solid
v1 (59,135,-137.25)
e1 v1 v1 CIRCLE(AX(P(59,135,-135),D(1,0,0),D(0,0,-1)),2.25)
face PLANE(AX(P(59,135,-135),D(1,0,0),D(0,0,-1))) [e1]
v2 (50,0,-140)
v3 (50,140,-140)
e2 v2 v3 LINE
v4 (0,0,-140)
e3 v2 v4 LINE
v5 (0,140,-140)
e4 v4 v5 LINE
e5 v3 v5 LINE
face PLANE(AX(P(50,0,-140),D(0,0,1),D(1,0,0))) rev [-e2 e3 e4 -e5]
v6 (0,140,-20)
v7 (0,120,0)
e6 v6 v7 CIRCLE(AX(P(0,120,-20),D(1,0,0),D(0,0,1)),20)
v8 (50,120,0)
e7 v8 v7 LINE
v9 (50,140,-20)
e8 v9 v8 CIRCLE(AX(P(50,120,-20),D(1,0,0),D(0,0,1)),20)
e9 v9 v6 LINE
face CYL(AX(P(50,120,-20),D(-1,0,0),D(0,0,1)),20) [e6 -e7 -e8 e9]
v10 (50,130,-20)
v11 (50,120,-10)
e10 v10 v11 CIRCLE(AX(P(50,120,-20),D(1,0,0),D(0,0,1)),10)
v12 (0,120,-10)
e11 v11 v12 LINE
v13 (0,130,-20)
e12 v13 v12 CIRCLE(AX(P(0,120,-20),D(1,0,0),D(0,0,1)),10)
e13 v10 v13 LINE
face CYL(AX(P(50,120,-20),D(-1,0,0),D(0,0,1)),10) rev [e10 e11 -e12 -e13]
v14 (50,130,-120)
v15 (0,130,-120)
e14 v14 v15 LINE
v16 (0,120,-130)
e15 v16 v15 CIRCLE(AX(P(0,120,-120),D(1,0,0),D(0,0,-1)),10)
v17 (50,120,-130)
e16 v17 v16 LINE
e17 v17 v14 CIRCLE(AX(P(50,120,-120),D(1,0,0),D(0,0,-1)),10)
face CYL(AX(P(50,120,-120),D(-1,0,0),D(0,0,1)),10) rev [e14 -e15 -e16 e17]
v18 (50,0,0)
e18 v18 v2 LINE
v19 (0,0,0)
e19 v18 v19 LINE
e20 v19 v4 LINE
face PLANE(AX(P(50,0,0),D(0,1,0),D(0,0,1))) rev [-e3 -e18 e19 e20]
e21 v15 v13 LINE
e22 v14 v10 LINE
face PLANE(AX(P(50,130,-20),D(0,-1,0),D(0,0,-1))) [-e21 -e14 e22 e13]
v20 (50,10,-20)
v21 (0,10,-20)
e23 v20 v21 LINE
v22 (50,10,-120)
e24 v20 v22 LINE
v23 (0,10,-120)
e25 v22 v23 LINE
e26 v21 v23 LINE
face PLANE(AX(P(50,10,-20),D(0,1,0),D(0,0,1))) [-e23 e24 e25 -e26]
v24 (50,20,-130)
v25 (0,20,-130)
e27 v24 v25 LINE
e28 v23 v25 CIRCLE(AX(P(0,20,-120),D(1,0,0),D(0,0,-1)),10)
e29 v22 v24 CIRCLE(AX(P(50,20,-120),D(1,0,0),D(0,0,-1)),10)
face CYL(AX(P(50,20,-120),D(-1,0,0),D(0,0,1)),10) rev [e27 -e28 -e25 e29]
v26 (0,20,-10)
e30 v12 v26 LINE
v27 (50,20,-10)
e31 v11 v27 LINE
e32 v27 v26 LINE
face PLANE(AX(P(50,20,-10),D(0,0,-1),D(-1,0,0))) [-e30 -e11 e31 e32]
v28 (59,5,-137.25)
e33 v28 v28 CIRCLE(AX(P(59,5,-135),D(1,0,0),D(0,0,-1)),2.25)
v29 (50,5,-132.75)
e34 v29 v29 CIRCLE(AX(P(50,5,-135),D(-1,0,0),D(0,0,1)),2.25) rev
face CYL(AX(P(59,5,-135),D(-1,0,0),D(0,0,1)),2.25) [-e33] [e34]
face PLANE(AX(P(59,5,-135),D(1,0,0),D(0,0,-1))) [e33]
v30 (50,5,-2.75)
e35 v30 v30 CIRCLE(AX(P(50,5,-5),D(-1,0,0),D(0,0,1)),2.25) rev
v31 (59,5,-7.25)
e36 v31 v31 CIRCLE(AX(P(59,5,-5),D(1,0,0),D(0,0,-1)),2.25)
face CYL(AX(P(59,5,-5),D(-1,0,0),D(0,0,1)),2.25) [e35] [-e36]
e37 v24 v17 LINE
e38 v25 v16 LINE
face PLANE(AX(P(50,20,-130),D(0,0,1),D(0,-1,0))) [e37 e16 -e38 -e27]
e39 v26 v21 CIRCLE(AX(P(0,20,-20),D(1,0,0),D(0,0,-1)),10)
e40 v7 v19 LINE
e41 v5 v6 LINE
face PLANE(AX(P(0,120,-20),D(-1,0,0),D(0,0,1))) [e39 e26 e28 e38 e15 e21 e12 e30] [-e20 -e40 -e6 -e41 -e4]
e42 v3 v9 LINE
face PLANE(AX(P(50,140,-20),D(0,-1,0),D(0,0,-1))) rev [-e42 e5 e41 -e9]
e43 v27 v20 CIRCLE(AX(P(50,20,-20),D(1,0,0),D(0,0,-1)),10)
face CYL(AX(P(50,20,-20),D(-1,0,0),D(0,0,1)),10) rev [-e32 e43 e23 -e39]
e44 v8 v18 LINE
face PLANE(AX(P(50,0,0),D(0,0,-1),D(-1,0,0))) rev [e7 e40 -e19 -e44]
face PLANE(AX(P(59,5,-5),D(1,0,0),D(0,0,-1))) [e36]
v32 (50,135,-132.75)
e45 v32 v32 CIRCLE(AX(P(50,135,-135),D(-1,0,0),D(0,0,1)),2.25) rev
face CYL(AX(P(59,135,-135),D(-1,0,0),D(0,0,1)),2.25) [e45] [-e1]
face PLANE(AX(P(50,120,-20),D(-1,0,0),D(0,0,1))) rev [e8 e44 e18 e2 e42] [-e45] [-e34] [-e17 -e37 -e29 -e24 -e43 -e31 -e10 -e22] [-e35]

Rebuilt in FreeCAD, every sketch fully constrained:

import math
import FreeCAD as App
import Part
import Sketcher

doc = App.newDocument("Part")
body = doc.addObject("PartDesign::Body", "Body")

sketch1 = body.newObject("Sketcher::SketchObject", "Sketch")
sketch1.AttachmentSupport = (doc.getObject("YZ_Plane"), [""])
sketch1.MapMode = "FlatFace"
sketch1.addGeometry([
    Part.LineSegment(App.Vector(0, 0, 0), App.Vector(0, -140, 0)),
    Part.LineSegment(App.Vector(0, -140, 0), App.Vector(140, -140, 0)),
    Part.LineSegment(App.Vector(140, -140, 0), App.Vector(140, -20, 0)),
    Part.ArcOfCircle(Part.Circle(App.Vector(120, -20, 0), App.Vector(0, 0, 1), 20), math.radians(0), math.radians(90)),
    Part.LineSegment(App.Vector(120, 0, 0), App.Vector(0, 0, 0)),
    Part.LineSegment(App.Vector(10, -120, 0), App.Vector(10, -20, 0)),
    Part.ArcOfCircle(Part.Circle(App.Vector(20, -20, 0), App.Vector(0, 0, 1), 10), math.radians(90), math.radians(180)),
    Part.LineSegment(App.Vector(20, -10, 0), App.Vector(120, -10, 0)),
    Part.ArcOfCircle(Part.Circle(App.Vector(120, -20, 0), App.Vector(0, 0, 1), 10), math.radians(0), math.radians(90)),
    Part.LineSegment(App.Vector(130, -20, 0), App.Vector(130, -120, 0)),
    Part.ArcOfCircle(Part.Circle(App.Vector(120, -120, 0), App.Vector(0, 0, 1), 10), math.radians(-90), math.radians(0)),
    Part.LineSegment(App.Vector(120, -130, 0), App.Vector(20, -130, 0)),
    Part.ArcOfCircle(Part.Circle(App.Vector(20, -120, 0), App.Vector(0, 0, 1), 10), math.radians(180), math.radians(270)),
], False)
sketch1.addConstraint([
    Sketcher.Constraint("Coincident", 0, 2, 1, 1),
    Sketcher.Constraint("Coincident", 1, 2, 2, 1),
    Sketcher.Constraint("Tangent", 2, 2, 3, 1),
    Sketcher.Constraint("Tangent", 3, 2, 4, 1),
    Sketcher.Constraint("Coincident", 4, 2, 0, 1),
    Sketcher.Constraint("Tangent", 5, 2, 6, 2),
    Sketcher.Constraint("Tangent", 6, 1, 7, 1),
    Sketcher.Constraint("Tangent", 7, 2, 8, 2),
    Sketcher.Constraint("Tangent", 8, 1, 9, 1),
    Sketcher.Constraint("Tangent", 9, 2, 10, 2),
    Sketcher.Constraint("Tangent", 10, 1, 11, 1),
    Sketcher.Constraint("Tangent", 11, 2, 12, 2),
    Sketcher.Constraint("Tangent", 12, 1, 5, 1),
    Sketcher.Constraint("Vertical", 0),
    Sketcher.Constraint("Horizontal", 1),
    Sketcher.Constraint("Vertical", 2),
    Sketcher.Constraint("Horizontal", 4),
    Sketcher.Constraint("Vertical", 5),
    Sketcher.Constraint("Horizontal", 7),
    Sketcher.Constraint("Vertical", 9),
    Sketcher.Constraint("Horizontal", 11),
    Sketcher.Constraint("Coincident", 4, 2, -1, 1),
    Sketcher.Constraint("Coincident", 8, 3, 3, 3),
    Sketcher.Constraint("Equal", 6, 8),
    Sketcher.Constraint("Equal", 8, 10),
    Sketcher.Constraint("Equal", 10, 12),
    Sketcher.Constraint("Equal", 1, 0),
    Sketcher.Constraint("Equal", 11, 5),
    Sketcher.Constraint("Radius", 3, 20.0),
    Sketcher.Constraint("Radius", 6, 10.0),
    Sketcher.Constraint("DistanceX", 1, 1, 1, 2, 140.0),
    Sketcher.Constraint("DistanceX", 7, 1, 7, 2, 100.0),
])
pad1 = body.newObject("PartDesign::Pad", "Pad")
pad1.Profile = sketch1
pad1.Length = 50

sketch2 = body.newObject("Sketcher::SketchObject", "Sketch001")
sketch2.AttachmentSupport = (doc.getObject("YZ_Plane"), [""])
sketch2.MapMode = "FlatFace"
sketch2.AttachmentOffset = App.Placement(App.Vector(0, 0, 50), App.Rotation())
sketch2.addGeometry([
    Part.Circle(App.Vector(5, -5, 0), App.Vector(0, 0, 1), 2.2),
    Part.Circle(App.Vector(5, -135, 0), App.Vector(0, 0, 1), 2.2),
    Part.Circle(App.Vector(135, -135, 0), App.Vector(0, 0, 1), 2.2),
], False)
sketch2.addConstraint([
    Sketcher.Constraint("Equal", 0, 1),
    Sketcher.Constraint("Equal", 1, 2),
    Sketcher.Constraint("Horizontal", 1, 3, 2, 3),
    Sketcher.Constraint("Vertical", 0, 3, 1, 3),
    Sketcher.Constraint("Diameter", 0, 4.5),
    Sketcher.Constraint("DistanceX", -1, 1, 0, 3, 5.0),
    Sketcher.Constraint("DistanceY", 0, 3, -1, 1, 5.0),
    Sketcher.Constraint("DistanceY", 1, 3, -1, 1, 135.0),
    Sketcher.Constraint("DistanceX", -1, 1, 2, 3, 135.0),
])
pad2 = body.newObject("PartDesign::Pad", "Pad001")
pad2.Profile = sketch2
pad2.Length = 9

doc.recompute()
